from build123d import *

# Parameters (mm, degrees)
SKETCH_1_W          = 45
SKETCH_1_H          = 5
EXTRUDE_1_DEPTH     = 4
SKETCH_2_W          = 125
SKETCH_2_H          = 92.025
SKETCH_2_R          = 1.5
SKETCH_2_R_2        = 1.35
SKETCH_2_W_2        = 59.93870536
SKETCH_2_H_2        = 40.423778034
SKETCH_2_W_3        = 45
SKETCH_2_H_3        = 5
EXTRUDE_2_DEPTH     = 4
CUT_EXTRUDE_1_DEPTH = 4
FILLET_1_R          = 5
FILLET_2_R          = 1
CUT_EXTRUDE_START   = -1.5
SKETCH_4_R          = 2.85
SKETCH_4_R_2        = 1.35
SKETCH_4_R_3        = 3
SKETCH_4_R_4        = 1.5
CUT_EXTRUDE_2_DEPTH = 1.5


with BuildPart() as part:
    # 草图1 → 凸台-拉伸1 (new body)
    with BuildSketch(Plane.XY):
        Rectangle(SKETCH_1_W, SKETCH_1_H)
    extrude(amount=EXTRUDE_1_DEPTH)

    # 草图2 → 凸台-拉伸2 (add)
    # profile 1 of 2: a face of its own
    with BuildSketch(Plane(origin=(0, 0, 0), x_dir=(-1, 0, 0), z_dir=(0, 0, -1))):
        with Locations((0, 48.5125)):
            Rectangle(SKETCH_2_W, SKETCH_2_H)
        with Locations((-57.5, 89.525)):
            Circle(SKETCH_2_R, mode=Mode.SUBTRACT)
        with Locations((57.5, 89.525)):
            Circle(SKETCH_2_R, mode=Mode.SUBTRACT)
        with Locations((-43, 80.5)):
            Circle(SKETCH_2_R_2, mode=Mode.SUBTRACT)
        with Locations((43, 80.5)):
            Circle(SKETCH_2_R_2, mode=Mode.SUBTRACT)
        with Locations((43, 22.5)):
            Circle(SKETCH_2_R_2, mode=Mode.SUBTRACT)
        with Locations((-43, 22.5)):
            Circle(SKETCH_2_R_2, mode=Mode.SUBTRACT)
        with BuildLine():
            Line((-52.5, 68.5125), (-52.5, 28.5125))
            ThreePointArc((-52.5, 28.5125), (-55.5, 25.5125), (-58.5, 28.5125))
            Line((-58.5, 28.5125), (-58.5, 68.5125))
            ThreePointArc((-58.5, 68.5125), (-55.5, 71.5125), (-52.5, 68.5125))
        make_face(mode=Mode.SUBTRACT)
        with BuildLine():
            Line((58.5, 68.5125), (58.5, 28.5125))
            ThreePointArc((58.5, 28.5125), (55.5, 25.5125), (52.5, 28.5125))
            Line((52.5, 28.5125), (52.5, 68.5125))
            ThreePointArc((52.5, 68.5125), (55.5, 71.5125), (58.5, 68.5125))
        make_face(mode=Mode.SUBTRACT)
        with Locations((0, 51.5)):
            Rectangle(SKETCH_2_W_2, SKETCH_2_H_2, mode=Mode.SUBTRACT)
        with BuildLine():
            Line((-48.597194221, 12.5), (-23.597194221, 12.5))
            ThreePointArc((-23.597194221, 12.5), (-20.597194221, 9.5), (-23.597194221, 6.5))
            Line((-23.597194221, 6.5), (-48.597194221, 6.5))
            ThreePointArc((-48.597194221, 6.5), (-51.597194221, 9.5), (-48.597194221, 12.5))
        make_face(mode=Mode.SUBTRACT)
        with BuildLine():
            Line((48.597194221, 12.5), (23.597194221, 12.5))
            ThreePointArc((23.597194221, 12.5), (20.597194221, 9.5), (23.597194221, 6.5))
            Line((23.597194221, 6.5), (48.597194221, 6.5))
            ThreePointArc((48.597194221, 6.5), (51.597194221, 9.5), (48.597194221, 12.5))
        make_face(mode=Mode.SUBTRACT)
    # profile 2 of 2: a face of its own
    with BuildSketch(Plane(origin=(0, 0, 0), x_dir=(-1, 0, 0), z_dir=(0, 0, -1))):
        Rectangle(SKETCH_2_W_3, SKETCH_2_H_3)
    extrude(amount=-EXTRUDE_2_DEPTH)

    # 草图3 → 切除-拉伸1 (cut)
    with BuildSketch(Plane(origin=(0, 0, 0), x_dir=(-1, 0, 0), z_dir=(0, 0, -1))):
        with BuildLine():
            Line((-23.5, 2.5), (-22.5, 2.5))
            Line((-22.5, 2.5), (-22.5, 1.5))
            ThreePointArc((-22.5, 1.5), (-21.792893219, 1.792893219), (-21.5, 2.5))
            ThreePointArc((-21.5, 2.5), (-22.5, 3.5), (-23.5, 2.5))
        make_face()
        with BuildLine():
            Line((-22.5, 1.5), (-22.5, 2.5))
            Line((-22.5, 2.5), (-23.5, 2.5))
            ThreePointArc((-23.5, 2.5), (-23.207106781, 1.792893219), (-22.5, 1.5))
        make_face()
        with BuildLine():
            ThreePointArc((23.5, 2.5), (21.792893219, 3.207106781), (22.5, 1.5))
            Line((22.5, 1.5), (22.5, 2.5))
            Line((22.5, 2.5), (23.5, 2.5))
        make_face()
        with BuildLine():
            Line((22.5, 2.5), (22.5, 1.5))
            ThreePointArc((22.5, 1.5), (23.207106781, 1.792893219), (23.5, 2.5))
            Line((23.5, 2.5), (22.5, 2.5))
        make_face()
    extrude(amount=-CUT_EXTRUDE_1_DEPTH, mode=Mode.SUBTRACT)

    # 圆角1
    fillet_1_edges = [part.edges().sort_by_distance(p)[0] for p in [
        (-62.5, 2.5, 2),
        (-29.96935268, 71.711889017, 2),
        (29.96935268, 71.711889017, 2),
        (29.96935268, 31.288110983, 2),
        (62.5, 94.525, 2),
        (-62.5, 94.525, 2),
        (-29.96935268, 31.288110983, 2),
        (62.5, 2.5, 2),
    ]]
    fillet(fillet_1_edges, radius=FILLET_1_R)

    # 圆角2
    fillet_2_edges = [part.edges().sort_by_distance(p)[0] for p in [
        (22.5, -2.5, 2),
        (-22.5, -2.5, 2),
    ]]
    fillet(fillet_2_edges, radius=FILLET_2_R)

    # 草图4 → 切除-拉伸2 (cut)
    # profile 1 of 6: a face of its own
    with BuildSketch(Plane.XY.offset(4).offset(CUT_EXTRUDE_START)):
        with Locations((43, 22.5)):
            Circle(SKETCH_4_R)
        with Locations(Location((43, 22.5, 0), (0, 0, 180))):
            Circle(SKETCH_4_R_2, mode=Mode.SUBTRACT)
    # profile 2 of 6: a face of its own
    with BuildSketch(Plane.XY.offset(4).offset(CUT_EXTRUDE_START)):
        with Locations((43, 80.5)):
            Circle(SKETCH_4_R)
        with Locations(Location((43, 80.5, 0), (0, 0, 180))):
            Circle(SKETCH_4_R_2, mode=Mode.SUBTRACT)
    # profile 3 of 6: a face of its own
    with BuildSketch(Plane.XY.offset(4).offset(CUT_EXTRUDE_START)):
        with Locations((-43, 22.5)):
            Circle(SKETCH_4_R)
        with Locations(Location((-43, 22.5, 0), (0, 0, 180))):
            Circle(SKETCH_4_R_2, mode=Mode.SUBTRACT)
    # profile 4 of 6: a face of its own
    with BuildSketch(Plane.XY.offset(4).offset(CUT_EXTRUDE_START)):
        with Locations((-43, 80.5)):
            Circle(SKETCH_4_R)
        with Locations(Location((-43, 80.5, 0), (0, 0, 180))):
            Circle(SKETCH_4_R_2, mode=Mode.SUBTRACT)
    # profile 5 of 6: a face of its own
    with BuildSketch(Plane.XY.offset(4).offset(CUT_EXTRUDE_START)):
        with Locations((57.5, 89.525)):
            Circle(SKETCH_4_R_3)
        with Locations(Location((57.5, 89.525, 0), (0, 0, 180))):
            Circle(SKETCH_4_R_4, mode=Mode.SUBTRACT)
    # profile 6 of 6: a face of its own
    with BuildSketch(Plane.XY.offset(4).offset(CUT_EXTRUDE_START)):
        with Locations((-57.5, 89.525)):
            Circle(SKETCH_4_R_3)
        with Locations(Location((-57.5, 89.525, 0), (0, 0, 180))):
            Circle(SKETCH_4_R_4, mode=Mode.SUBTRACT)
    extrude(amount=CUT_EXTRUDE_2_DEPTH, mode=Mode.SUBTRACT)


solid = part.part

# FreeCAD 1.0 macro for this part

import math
import FreeCAD as App
import Part
import Sketcher

V = App.Vector
Q = App.Units.Quantity


def edges_at(feature, points):
    """Names of the edges that pass closest to the given points."""
    edges = feature.Shape.Edges
    near = lambda p: min(range(len(edges)), key=lambda i: edges[i].distToShape(Part.Vertex(*p))[0])
    return sorted({f"Edge{near(p) + 1}" for p in points})


def add_polygon(sketch, points):
    """Adds a closed chain of lines whose ends are joined by coincident constraints."""
    first, n = sketch.GeometryCount, len(points)
    for a, b in zip(points, points[1:] + points[:1]):
        sketch.addGeometry(Part.LineSegment(App.Vector(*a, 0), App.Vector(*b, 0)), False)
    for i in range(n):
        sketch.addConstraint(Sketcher.Constraint("Coincident", first + i, 2, first + (i + 1) % n, 1))

doc = App.newDocument("Part")
body = doc.addObject("PartDesign::Body", "Body")

# Sketch on XY plane
sketch1 = doc.addObject("Sketcher::SketchObject", "Sketch")
body.addObject(sketch1)
sketch1.AttachmentSupport = (doc.XY_Plane, [""])
sketch1.MapMode = "FlatFace"
add_polygon(sketch1, [(-22, 2), (-22, -2), (22, -2), (22, 2)])  # lines 0-3
sketch1.addConstraint([
    Sketcher.Constraint("Vertical", 0),
    Sketcher.Constraint("Horizontal", 1),
    Sketcher.Constraint("Vertical", 2),
    Sketcher.Constraint("Horizontal", 3),
    Sketcher.Constraint("Symmetric", 0, 2, 2, 2, -1, 1),
    Sketcher.Constraint("DistanceX", 1, 1, 1, 2, Q("45 mm")),
    Sketcher.Constraint("DistanceY", 0, 2, 0, 1, Q("5 mm")),
])
pad1 = doc.addObject("PartDesign::Pad", "Pad")
body.addObject(pad1)
pad1.Profile = sketch1
pad1.Length = 4

# Sketch on XY plane
sketch2 = doc.addObject("Sketcher::SketchObject", "Sketch001")
body.addObject(sketch2)
sketch2.AttachmentSupport = (doc.XY_Plane, [""])
sketch2.MapMode = "FlatFace"
add_polygon(sketch2, [(62.5, 94.5), (62.5, 2.5), (22.5, 2.5), (22.5, -2.5), (-22.5, -2.5), (-22.5, 2.5), (-62.5, 2.5), (-62.5, 94.5)])  # lines 0-7
sketch2.addGeometry(Part.ArcOfCircle(Part.Circle(V(48.6, 9.5, 0), V(0, 0, 1), 3), math.radians(-90), math.radians(90)), False)  # 8
sketch2.addGeometry(Part.LineSegment(V(48.6, 12.5, 0), V(23.6, 12.5, 0)), False)  # 9
sketch2.addGeometry(Part.ArcOfCircle(Part.Circle(V(23.6, 9.5, 0), V(0, 0, 1), 3), math.radians(90), math.radians(270)), False)  # 10
sketch2.addGeometry(Part.LineSegment(V(23.6, 6.5, 0), V(48.6, 6.5, 0)), False)  # 11
sketch2.addGeometry(Part.Circle(V(43, 22.5, 0), V(0, 0, 1), 1.4), False)  # 12
sketch2.addGeometry(Part.ArcOfCircle(Part.Circle(V(55.5, 68.5, 0), V(0, 0, 1), 3), math.radians(0), math.radians(180)), False)  # 13
sketch2.addGeometry(Part.LineSegment(V(52.5, 68.5, 0), V(52.5, 28.5, 0)), False)  # 14
sketch2.addGeometry(Part.ArcOfCircle(Part.Circle(V(55.5, 28.5, 0), V(0, 0, 1), 3), math.radians(180), math.radians(360)), False)  # 15
sketch2.addGeometry(Part.LineSegment(V(58.5, 28.5, 0), V(58.5, 68.5, 0)), False)  # 16
sketch2.addGeometry(Part.LineSegment(V(-23.6, 12.5, 0), V(-48.6, 12.5, 0)), False)  # 17
sketch2.addGeometry(Part.ArcOfCircle(Part.Circle(V(-48.6, 9.5, 0), V(0, 0, 1), 3), math.radians(90), math.radians(270)), False)  # 18
sketch2.addGeometry(Part.LineSegment(V(-48.6, 6.5, 0), V(-23.6, 6.5, 0)), False)  # 19
sketch2.addGeometry(Part.ArcOfCircle(Part.Circle(V(-23.6, 9.5, 0), V(0, 0, 1), 3), math.radians(-90), math.radians(90)), False)  # 20
sketch2.addGeometry(Part.Circle(V(-43, 22.5, 0), V(0, 0, 1), 1.4), False)  # 21
sketch2.addGeometry(Part.ArcOfCircle(Part.Circle(V(-55.5, 68.5, 0), V(0, 0, 1), 3), math.radians(0), math.radians(180)), False)  # 22
sketch2.addGeometry(Part.LineSegment(V(-58.5, 68.5, 0), V(-58.5, 28.5, 0)), False)  # 23
sketch2.addGeometry(Part.ArcOfCircle(Part.Circle(V(-55.5, 28.5, 0), V(0, 0, 1), 3), math.radians(180), math.radians(360)), False)  # 24
sketch2.addGeometry(Part.LineSegment(V(-52.5, 28.5, 0), V(-52.5, 68.5, 0)), False)  # 25
sketch2.addGeometry(Part.Circle(V(57.5, 89.5, 0), V(0, 0, 1), 1.5), False)  # 26
sketch2.addGeometry(Part.Circle(V(43, 80.5, 0), V(0, 0, 1), 1.4), False)  # 27
add_polygon(sketch2, [(-30, 31.3), (30, 31.3), (30, 71.7), (-30, 71.7)])  # lines 28-31
sketch2.addGeometry(Part.Circle(V(-43, 80.5, 0), V(0, 0, 1), 1.4), False)  # 32
sketch2.addGeometry(Part.Circle(V(-57.5, 89.5, 0), V(0, 0, 1), 1.5), False)  # 33
sketch2.addConstraint([
    Sketcher.Constraint("Tangent", 8, 2, 9, 1),
    Sketcher.Constraint("Tangent", 9, 2, 10, 1),
    Sketcher.Constraint("Tangent", 10, 2, 11, 1),
    Sketcher.Constraint("Tangent", 11, 2, 8, 1),
    Sketcher.Constraint("Tangent", 13, 2, 14, 1),
    Sketcher.Constraint("Tangent", 14, 2, 15, 1),
    Sketcher.Constraint("Tangent", 15, 2, 16, 1),
    Sketcher.Constraint("Tangent", 16, 2, 13, 1),
    Sketcher.Constraint("Tangent", 17, 2, 18, 1),
    Sketcher.Constraint("Tangent", 18, 2, 19, 1),
    Sketcher.Constraint("Tangent", 19, 2, 20, 1),
    Sketcher.Constraint("Tangent", 20, 2, 17, 1),
    Sketcher.Constraint("Tangent", 22, 2, 23, 1),
    Sketcher.Constraint("Tangent", 23, 2, 24, 1),
    Sketcher.Constraint("Tangent", 24, 2, 25, 1),
    Sketcher.Constraint("Tangent", 25, 2, 22, 1),
    Sketcher.Constraint("Vertical", 0),
    Sketcher.Constraint("Horizontal", 1),
    Sketcher.Constraint("Vertical", 2),
    Sketcher.Constraint("Horizontal", 3),
    Sketcher.Constraint("Vertical", 4),
    Sketcher.Constraint("Horizontal", 5),
    Sketcher.Constraint("Vertical", 6),
    Sketcher.Constraint("Horizontal", 7),
    Sketcher.Constraint("Horizontal", 9),
    Sketcher.Constraint("Horizontal", 11),
    Sketcher.Constraint("Vertical", 14),
    Sketcher.Constraint("Vertical", 16),
    Sketcher.Constraint("Horizontal", 17),
    Sketcher.Constraint("Horizontal", 19),
    Sketcher.Constraint("Vertical", 23),
    Sketcher.Constraint("Vertical", 25),
    Sketcher.Constraint("Horizontal", 28),
    Sketcher.Constraint("Vertical", 29),
    Sketcher.Constraint("Horizontal", 30),
    Sketcher.Constraint("Vertical", 31),
    Sketcher.Constraint("Equal", 10, 13),
    Sketcher.Constraint("Equal", 15, 18),
    Sketcher.Constraint("Equal", 12, 21),
    Sketcher.Constraint("Equal", 20, 22),
    Sketcher.Constraint("Equal", 21, 27),
    Sketcher.Constraint("Equal", 27, 32),
    Sketcher.Constraint("Equal", 26, 33),
    Sketcher.Constraint("Symmetric", 1, 2, 3, 2, -1, 1),
    Sketcher.Constraint("Symmetric", 8, 3, 18, 3, -2),
    Sketcher.Constraint("Symmetric", 12, 3, 21, 3, -2),
    Sketcher.Constraint("Symmetric", 13, 3, 22, 3, -2),
    Sketcher.Constraint("Symmetric", 27, 3, 32, 3, -2),
    Sketcher.Constraint("Symmetric", 26, 3, 33, 3, -2),
    Sketcher.Constraint("Symmetric", 0, 2, 5, 2, -2),
    Sketcher.Constraint("Horizontal", 15, 3, 24, 3),
    Sketcher.Constraint("Vertical", 12, 3, 27, 3),
    Sketcher.Constraint("Equal", 11, 17),
    Sketcher.Constraint("Equal", 5, 14),
    Sketcher.Constraint("Diameter", 26, Q("3 mm")),
    Sketcher.Constraint("Radius", 8, Q("3 mm")),
    Sketcher.Constraint("Diameter", 12, Q("2.7 mm")),
    Sketcher.Constraint("DistanceX", 1, 2, 1, 1, Q("40 mm")),
    Sketcher.Constraint("DistanceX", 3, 2, 3, 1, Q("45 mm")),
    Sketcher.Constraint("DistanceX", 9, 2, 9, 1, Q("25 mm")),
    Sketcher.Constraint("DistanceY", 2, 2, 2, 1, Q("5 mm")),
    Sketcher.Constraint("DistanceX", -1, 1, 12, 3, Q("43 mm")),
    Sketcher.Constraint("DistanceY", 8, 3, 12, 3, Q("13 mm")),
    Sketcher.Constraint("DistanceX", 13, 3, 26, 3, Q("2 mm")),
    Sketcher.Constraint("DistanceY", 12, 3, 27, 3, Q("58 mm")),
    Sketcher.Constraint("DistanceY", 0, 2, 8, 3, Q("7 mm")),
    Sketcher.Constraint("DistanceX", 15, 3, 0, 2, Q("7 mm")),
    Sketcher.Constraint("DistanceY", 33, 3, 6, 2, Q("5 mm")),
    Sketcher.Constraint("DistanceY", 0, 2, 0, 1, Q("92.025 mm")),
    Sketcher.Constraint("DistanceY", 29, 1, 29, 2, Q("40.423778 mm")),
    Sketcher.Constraint("DistanceY", -1, 1, 13, 3, Q("68.5125 mm")),
    Sketcher.Constraint("DistanceX", 28, 1, 28, 2, Q("59.938705 mm")),
    Sketcher.Constraint("DistanceY", -1, 1, 28, 2, Q("31.288111 mm")),
    Sketcher.Constraint("DistanceX", 18, 3, 10, 3, Q("72.194388 mm")),
    Sketcher.Constraint("DistanceX", 9, 2, 28, 2, Q("6.372158 mm")),
])
pad2 = doc.addObject("PartDesign::Pad", "Pad001")
body.addObject(pad2)
pad2.Profile = sketch2
pad2.Length = 4

# Sketch on XY plane
sketch3 = doc.addObject("Sketcher::SketchObject", "Sketch002")
body.addObject(sketch3)
sketch3.AttachmentSupport = (doc.XY_Plane, [""])
sketch3.MapMode = "FlatFace"
sketch3.addGeometry([
    Part.ArcOfCircle(Part.Circle(V(22.5, 2.5, 0), V(0, 0, 1), 1), math.radians(-180), math.radians(-90)),  # 0
    Part.ArcOfCircle(Part.Circle(V(22.5, 2.5, 0), V(0, 0, 1), 1), math.radians(0), math.radians(180)),  # 1
    Part.ArcOfCircle(Part.Circle(V(22.5, 2.5, 0), V(0, 0, 1), 1), math.radians(-90), math.radians(0)),  # 2
    Part.ArcOfCircle(Part.Circle(V(-22.5, 2.5, 0), V(0, 0, 1), 1), math.radians(-90), math.radians(180)),  # 3
    Part.ArcOfCircle(Part.Circle(V(-22.5, 2.5, 0), V(0, 0, 1), 1), math.radians(-180), math.radians(-90)),  # 4
], False)
sketch3.addConstraint([
    Sketcher.Constraint("Tangent", 0, 1, 1, 2),
    Sketcher.Constraint("Tangent", 1, 1, 2, 2),
    Sketcher.Constraint("Tangent", 2, 1, 0, 2),
    Sketcher.Constraint("Tangent", 3, 1, 4, 2),
    Sketcher.Constraint("Coincident", 4, 1, 3, 2),
    Sketcher.Constraint("Equal", 2, 3),
    Sketcher.Constraint("Symmetric", 0, 3, 3, 3, -2),
    Sketcher.Constraint("Horizontal", 4, 3, 0, 1),
    Sketcher.Constraint("Horizontal", 0, 1, 1, 1),
    Sketcher.Constraint("Horizontal", 1, 1, 4, 1),
    Sketcher.Constraint("Vertical", 1, 3, 2, 1),
    Sketcher.Constraint("Vertical", 4, 3, 3, 1),
    Sketcher.Constraint("Radius", 0, Q("1 mm")),
    Sketcher.Constraint("DistanceX", 3, 3, 2, 3, Q("45 mm")),
    Sketcher.Constraint("DistanceY", -1, 1, 0, 3, Q("2.5 mm")),
])
pocket1 = doc.addObject("PartDesign::Pocket", "Pocket")
body.addObject(pocket1)
pocket1.Profile = sketch3
pocket1.Length = 4
pocket1.Reversed = True
doc.recompute()

fillet = doc.addObject("PartDesign::Fillet", "Fillet")
body.addObject(fillet)
fillet.Base = (pocket1, edges_at(pocket1, [
    (-62.5, 2.5, 2),
    (-29.969, 71.712, 2),
    (29.969, 71.712, 2),
    (29.969, 31.288, 2),
    (62.5, 94.525, 2),
    (-62.5, 94.525, 2),
    (-29.969, 31.288, 2),
    (62.5, 2.5, 2),
]))
fillet.Radius = 5
doc.recompute()

fillet2 = doc.addObject("PartDesign::Fillet", "Fillet001")
body.addObject(fillet2)
fillet2.Base = (fillet, edges_at(fillet, [(22.5, -2.5, 2), (-22.5, -2.5, 2)]))
fillet2.Radius = 1

# Sketch on XY plane
sketch4 = doc.addObject("Sketcher::SketchObject", "Sketch003")
body.addObject(sketch4)
sketch4.AttachmentSupport = (doc.XY_Plane, [""])
sketch4.MapMode = "FlatFace"
sketch4.AttachmentOffset = App.Placement(V(0, 0, 2.5), App.Rotation())
sketch4.addGeometry([
    Part.Circle(V(43, 22.5, 0), V(0, 0, 1), 2.9),  # 0
    Part.Circle(V(43, 22.5, 0), V(0, 0, 1), 1.4),  # 1
    Part.Circle(V(43, 80.5, 0), V(0, 0, 1), 2.9),  # 2
    Part.Circle(V(43, 80.5, 0), V(0, 0, 1), 1.4),  # 3
    Part.Circle(V(-43, 22.5, 0), V(0, 0, 1), 2.9),  # 4
    Part.Circle(V(-43, 22.5, 0), V(0, 0, 1), 1.4),  # 5
    Part.Circle(V(-43, 80.5, 0), V(0, 0, 1), 2.9),  # 6
    Part.Circle(V(-43, 80.5, 0), V(0, 0, 1), 1.4),  # 7
    Part.Circle(V(57.5, 89.5, 0), V(0, 0, 1), 3),  # 8
    Part.Circle(V(57.5, 89.5, 0), V(0, 0, 1), 1.5),  # 9
    Part.Circle(V(-57.5, 89.5, 0), V(0, 0, 1), 3),  # 10
    Part.Circle(V(-57.5, 89.5, 0), V(0, 0, 1), 1.5),  # 11
], False)
sketch4.addConstraint([
    Sketcher.Constraint("Coincident", 1, 3, 0, 3),
    Sketcher.Constraint("Coincident", 3, 3, 2, 3),
    Sketcher.Constraint("Coincident", 5, 3, 4, 3),
    Sketcher.Constraint("Coincident", 7, 3, 6, 3),
    Sketcher.Constraint("Coincident", 9, 3, 8, 3),
    Sketcher.Constraint("Coincident", 11, 3, 10, 3),
    Sketcher.Constraint("Equal", 0, 2),
    Sketcher.Constraint("Equal", 1, 3),
    Sketcher.Constraint("Equal", 2, 4),
    Sketcher.Constraint("Equal", 3, 5),
    Sketcher.Constraint("Equal", 4, 6),
    Sketcher.Constraint("Equal", 5, 7),
    Sketcher.Constraint("Equal", 8, 10),
    Sketcher.Constraint("Equal", 9, 11),
    Sketcher.Constraint("Symmetric", 0, 3, 4, 3, -2),
    Sketcher.Constraint("Symmetric", 2, 3, 6, 3, -2),
    Sketcher.Constraint("Symmetric", 8, 3, 10, 3, -2),
    Sketcher.Constraint("Vertical", 1, 3, 2, 3),
    Sketcher.Constraint("Diameter", 8, Q("6 mm")),
    Sketcher.Constraint("Diameter", 9, Q("3 mm")),
    Sketcher.Constraint("Diameter", 0, Q("5.7 mm")),
    Sketcher.Constraint("Diameter", 1, Q("2.7 mm")),
    Sketcher.Constraint("DistanceX", -1, 1, 0, 3, Q("43 mm")),
    Sketcher.Constraint("DistanceY", 0, 3, 2, 3, Q("58 mm")),
    Sketcher.Constraint("DistanceY", -1, 1, 0, 3, Q("22.5 mm")),
    Sketcher.Constraint("DistanceX", -1, 1, 8, 3, Q("57.5 mm")),
    Sketcher.Constraint("DistanceY", -1, 1, 8, 3, Q("89.525 mm")),
])
pocket2 = doc.addObject("PartDesign::Pocket", "Pocket001")
body.addObject(pocket2)
pocket2.Profile = sketch4
pocket2.Length = 1.5
pocket2.Reversed = True

doc.recompute()
